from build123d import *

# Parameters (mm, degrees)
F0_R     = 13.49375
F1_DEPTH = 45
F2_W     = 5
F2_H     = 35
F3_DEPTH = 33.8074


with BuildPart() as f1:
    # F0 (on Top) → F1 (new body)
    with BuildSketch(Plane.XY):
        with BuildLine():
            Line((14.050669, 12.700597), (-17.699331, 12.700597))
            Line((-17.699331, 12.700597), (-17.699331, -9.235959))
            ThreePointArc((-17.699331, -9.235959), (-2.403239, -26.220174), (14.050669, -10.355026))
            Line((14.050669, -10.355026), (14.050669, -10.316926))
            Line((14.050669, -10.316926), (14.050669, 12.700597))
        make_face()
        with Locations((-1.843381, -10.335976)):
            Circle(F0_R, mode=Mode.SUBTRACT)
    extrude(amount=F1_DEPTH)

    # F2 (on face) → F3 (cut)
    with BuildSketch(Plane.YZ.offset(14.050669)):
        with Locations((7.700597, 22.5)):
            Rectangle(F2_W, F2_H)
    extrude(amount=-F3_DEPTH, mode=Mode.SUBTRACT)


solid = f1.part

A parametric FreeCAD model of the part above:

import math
import FreeCAD as App
import Part
import Sketcher
from FreeCAD import Vector
Q = App.Units.Quantity

doc = App.newDocument("Part")
body = doc.addObject("PartDesign::Body", "Body")

sketch1 = body.newObject("Sketcher::SketchObject", "Sketch")
sketch1.AttachmentSupport = (doc.getObject("XY_Plane"), [""])
sketch1.MapMode = "FlatFace"
sketch1.addGeometry([
    Part.LineSegment(Vector(14, 13, 0), Vector(-18, 13, 0)),
    Part.LineSegment(Vector(-18, 13, 0), Vector(-18, -9, 0)),
    Part.ArcOfCircle(Part.Circle(Vector(-2, -10, 0), Vector(0, 0, 1), 16), math.radians(176), math.radians(360)),
    Part.LineSegment(Vector(14, -10, 0), Vector(14, 13, 0)),
    Part.Circle(Vector(-2, -10, 0), Vector(0, 0, 1), 13),
], False)
sketch1.addConstraint([
    Sketcher.Constraint("Coincident", 0, 2, 1, 1),
    Sketcher.Constraint("Coincident", 1, 2, 2, 1),
    Sketcher.Constraint("Coincident", 2, 2, 3, 1),
    Sketcher.Constraint("Coincident", 3, 2, 0, 1),
    Sketcher.Constraint("Horizontal", 0),
    Sketcher.Constraint("Vertical", 1),
    Sketcher.Constraint("Vertical", 3),
    Sketcher.Constraint("Coincident", 4, 3, 2, 3),
    Sketcher.Constraint("Diameter", 4, Q("26.9875 mm")),
    Sketcher.Constraint("DistanceX", 0, 2, 0, 1, Q("31.75 mm")),
    Sketcher.Constraint("Radius", 2, Q("15.894061 mm")),
    Sketcher.Constraint("DistanceY", 1, 2, 1, 1, Q("21.936556 mm")),
    Sketcher.Constraint("DistanceY", 3, 1, 3, 2, Q("23.055623 mm")),
    Sketcher.Constraint("DistanceX", 2, 3, -1, 1, Q("1.843381 mm")),
    Sketcher.Constraint("DistanceY", 1, 2, -1, 1, Q("9.235959 mm")),
])
pad1 = body.newObject("PartDesign::Pad", "Pad")
pad1.Profile = sketch1
pad1.Length = 45

sketch2 = body.newObject("Sketcher::SketchObject", "Sketch001")
sketch2.AttachmentSupport = (doc.getObject("YZ_Plane"), [""])
sketch2.MapMode = "FlatFace"
sketch2.AttachmentOffset = App.Placement(Vector(0, 0, 14.050669), App.Rotation())
sketch2.addGeometry([
    Part.LineSegment(Vector(5, 40, 0), Vector(5, 5, 0)),
    Part.LineSegment(Vector(5, 5, 0), Vector(10, 5, 0)),
    Part.LineSegment(Vector(10, 5, 0), Vector(10, 40, 0)),
    Part.LineSegment(Vector(10, 40, 0), Vector(5, 40, 0)),
], False)
sketch2.addConstraint([
    Sketcher.Constraint("Coincident", 0, 2, 1, 1),
    Sketcher.Constraint("Coincident", 1, 2, 2, 1),
    Sketcher.Constraint("Coincident", 2, 2, 3, 1),
    Sketcher.Constraint("Coincident", 3, 2, 0, 1),
    Sketcher.Constraint("Vertical", 0),
    Sketcher.Constraint("Horizontal", 1),
    Sketcher.Constraint("Vertical", 2),
    Sketcher.Constraint("Horizontal", 3),
    Sketcher.Constraint("DistanceX", 1, 1, 1, 2, Q("5 mm")),
    Sketcher.Constraint("DistanceY", 0, 2, 0, 1, Q("35 mm")),
    Sketcher.Constraint("DistanceY", -1, 1, 0, 2, Q("5 mm")),
    Sketcher.Constraint("DistanceX", -1, 1, 0, 2, Q("5.200597 mm")),
])
pocket1 = body.newObject("PartDesign::Pocket", "Pocket")
pocket1.Profile = sketch2
pocket1.Length = 33.8074

doc.recompute()
